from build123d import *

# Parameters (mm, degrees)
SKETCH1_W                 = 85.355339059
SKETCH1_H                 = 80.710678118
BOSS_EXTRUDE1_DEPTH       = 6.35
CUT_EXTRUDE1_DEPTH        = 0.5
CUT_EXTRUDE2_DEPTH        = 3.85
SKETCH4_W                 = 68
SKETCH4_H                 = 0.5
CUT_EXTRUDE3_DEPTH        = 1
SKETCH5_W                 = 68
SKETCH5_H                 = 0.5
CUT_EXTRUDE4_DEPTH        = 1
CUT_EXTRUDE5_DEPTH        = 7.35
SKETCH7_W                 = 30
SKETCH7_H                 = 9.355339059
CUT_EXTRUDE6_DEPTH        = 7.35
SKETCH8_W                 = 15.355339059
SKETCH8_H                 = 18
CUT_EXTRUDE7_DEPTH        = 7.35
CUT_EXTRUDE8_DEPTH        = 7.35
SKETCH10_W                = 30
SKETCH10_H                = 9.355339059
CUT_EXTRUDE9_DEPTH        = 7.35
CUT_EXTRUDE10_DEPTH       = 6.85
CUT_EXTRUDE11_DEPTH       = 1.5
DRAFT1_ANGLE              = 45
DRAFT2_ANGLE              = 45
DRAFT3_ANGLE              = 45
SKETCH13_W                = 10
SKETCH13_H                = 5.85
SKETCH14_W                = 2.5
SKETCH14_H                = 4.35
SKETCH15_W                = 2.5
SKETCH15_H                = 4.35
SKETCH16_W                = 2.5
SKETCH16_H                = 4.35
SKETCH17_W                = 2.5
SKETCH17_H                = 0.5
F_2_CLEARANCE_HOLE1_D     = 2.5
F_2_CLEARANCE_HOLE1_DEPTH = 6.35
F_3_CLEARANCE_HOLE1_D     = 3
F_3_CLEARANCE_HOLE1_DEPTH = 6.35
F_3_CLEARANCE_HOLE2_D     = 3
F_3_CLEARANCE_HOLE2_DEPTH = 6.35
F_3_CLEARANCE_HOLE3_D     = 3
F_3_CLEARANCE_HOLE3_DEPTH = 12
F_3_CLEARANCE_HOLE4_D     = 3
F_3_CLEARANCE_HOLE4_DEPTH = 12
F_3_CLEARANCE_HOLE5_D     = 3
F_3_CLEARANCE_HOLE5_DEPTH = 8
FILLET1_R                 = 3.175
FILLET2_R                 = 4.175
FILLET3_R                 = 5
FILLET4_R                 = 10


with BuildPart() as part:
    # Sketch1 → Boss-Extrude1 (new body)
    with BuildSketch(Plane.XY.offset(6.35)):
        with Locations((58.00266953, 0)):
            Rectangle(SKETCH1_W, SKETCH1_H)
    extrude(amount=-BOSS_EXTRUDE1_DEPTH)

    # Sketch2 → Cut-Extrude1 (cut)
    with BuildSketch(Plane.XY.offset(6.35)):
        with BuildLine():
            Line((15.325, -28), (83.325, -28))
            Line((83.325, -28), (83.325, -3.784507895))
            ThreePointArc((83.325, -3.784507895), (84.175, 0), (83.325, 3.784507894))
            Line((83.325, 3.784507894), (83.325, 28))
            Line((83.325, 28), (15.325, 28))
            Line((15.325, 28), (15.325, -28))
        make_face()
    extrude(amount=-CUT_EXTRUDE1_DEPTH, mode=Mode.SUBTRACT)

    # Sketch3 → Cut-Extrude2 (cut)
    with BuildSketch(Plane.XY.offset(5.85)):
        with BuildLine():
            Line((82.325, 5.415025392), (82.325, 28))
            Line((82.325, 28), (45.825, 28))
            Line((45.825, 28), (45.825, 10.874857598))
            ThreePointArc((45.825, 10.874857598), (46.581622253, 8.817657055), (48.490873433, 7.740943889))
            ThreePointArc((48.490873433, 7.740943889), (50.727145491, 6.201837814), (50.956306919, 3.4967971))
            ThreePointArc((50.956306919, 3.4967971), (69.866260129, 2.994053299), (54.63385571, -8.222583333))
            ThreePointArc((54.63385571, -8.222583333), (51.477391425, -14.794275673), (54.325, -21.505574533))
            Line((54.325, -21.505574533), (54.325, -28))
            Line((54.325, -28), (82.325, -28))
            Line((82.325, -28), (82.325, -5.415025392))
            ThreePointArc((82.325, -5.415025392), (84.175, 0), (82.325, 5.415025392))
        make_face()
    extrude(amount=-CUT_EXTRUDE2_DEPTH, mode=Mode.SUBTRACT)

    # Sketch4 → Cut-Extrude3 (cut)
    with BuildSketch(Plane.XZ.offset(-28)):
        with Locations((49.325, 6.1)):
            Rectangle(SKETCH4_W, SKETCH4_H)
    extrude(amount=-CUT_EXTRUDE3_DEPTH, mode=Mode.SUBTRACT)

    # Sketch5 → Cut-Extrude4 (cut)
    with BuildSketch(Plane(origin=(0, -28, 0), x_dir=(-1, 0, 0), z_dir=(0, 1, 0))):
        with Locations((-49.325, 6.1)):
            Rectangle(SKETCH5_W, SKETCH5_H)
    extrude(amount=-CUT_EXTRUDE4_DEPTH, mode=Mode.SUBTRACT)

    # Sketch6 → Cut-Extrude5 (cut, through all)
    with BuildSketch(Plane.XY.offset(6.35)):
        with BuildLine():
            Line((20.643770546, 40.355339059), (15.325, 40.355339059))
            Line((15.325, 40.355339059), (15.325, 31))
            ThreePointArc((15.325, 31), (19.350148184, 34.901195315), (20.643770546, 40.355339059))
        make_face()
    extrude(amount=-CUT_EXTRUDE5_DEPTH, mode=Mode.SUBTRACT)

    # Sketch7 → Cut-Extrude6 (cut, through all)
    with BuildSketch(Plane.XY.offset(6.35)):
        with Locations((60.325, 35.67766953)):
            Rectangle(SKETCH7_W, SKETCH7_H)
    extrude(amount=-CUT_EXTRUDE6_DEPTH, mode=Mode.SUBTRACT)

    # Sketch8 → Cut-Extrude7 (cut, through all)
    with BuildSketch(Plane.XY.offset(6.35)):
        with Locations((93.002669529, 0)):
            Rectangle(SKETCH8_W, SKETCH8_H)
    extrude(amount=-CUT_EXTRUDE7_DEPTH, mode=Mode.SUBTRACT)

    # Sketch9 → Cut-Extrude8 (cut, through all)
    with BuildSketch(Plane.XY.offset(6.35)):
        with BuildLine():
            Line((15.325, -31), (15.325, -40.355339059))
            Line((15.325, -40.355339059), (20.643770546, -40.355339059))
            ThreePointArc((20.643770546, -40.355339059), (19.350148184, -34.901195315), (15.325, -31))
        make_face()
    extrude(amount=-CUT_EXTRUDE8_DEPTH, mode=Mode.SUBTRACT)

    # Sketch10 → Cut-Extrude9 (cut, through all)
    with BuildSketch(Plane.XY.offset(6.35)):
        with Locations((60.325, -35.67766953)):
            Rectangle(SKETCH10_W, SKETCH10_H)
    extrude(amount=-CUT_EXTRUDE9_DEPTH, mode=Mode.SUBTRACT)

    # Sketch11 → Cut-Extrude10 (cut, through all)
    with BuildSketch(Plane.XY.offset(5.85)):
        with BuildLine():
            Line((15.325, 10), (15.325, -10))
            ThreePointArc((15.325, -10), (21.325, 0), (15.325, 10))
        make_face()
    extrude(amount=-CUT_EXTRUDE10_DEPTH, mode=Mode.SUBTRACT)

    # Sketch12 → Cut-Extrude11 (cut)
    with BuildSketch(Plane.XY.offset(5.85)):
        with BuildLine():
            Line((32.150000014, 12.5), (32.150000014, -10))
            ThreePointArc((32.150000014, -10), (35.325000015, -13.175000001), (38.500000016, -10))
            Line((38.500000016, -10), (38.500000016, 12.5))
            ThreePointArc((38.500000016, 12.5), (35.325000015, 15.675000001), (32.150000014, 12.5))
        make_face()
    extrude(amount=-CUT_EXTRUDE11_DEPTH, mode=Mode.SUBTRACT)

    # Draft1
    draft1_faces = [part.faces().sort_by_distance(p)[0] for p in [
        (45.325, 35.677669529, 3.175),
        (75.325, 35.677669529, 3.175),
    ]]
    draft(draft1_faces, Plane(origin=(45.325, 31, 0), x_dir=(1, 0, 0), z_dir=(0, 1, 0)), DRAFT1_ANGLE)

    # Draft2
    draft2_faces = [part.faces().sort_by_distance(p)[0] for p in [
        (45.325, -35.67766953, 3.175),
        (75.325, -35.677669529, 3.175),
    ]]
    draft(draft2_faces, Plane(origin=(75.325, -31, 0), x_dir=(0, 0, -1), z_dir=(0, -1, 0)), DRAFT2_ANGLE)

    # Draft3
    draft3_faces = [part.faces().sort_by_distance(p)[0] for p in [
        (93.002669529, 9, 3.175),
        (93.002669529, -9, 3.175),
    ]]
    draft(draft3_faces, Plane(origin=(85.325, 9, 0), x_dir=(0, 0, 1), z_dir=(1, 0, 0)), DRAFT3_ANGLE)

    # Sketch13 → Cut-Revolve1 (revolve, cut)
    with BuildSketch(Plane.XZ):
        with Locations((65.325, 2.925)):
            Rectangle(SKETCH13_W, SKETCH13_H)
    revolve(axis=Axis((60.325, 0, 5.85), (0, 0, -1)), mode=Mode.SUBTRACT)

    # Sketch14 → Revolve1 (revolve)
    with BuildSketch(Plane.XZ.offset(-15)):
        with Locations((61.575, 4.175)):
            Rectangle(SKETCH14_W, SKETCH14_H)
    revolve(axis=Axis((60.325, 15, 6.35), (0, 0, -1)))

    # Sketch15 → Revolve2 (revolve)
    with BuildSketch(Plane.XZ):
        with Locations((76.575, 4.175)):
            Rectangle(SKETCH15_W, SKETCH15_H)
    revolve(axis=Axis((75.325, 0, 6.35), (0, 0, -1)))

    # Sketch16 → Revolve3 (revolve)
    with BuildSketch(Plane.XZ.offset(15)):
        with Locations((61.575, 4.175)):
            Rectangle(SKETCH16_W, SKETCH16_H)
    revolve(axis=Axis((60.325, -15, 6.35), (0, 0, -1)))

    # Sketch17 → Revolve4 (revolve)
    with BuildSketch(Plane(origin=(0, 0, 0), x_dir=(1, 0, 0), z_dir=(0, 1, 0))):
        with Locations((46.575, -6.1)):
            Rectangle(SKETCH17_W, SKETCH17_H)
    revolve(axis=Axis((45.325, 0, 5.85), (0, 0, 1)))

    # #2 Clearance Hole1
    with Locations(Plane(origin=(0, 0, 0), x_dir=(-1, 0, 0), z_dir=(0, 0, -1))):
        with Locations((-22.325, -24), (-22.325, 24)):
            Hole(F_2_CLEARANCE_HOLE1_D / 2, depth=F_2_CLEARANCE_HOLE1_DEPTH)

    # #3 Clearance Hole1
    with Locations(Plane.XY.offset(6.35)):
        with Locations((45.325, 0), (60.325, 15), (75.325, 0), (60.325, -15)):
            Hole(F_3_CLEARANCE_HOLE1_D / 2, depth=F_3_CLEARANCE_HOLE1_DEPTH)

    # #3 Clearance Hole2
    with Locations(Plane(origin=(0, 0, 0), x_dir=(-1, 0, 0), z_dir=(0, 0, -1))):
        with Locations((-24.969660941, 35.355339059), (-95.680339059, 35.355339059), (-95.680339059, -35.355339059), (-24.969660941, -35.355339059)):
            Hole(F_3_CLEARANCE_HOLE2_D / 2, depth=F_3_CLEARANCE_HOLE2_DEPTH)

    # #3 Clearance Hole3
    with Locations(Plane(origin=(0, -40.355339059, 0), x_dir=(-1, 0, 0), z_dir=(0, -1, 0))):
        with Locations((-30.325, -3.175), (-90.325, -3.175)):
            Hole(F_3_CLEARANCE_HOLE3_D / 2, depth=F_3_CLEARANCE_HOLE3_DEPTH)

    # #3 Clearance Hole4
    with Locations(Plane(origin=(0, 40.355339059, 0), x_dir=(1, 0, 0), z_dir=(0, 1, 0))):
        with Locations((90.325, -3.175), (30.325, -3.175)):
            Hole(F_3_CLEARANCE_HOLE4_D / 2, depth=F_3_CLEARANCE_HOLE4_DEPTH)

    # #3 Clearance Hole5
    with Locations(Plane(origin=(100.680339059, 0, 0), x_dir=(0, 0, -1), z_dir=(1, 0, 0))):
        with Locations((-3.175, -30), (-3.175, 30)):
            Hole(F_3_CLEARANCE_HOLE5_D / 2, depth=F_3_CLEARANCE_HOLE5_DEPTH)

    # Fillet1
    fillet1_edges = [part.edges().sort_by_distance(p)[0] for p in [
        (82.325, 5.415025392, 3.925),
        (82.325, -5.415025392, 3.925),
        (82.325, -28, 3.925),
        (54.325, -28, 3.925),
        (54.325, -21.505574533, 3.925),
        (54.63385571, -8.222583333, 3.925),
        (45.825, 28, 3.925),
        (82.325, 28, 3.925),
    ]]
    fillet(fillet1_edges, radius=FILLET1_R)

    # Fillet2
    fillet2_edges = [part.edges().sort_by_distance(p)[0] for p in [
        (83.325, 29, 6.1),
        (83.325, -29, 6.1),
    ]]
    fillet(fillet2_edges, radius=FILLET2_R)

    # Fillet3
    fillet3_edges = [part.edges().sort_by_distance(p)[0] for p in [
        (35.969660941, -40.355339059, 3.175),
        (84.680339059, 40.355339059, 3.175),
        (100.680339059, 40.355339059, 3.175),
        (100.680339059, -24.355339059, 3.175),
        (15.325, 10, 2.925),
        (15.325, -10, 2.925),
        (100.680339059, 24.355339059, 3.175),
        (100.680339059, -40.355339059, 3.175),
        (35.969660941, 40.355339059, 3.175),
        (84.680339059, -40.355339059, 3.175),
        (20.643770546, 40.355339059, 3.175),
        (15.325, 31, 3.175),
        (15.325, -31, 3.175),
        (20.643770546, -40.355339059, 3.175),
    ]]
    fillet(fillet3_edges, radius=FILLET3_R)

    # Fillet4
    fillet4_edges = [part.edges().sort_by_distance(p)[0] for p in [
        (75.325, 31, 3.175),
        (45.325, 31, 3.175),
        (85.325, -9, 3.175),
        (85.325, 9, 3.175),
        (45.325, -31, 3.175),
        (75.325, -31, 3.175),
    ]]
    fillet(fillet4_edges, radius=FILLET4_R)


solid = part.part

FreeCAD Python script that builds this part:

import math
import FreeCAD as App
import Part
import Sketcher
from FreeCAD import Vector


def edges_at(feature, points):
    """Names of the edges that pass closest to the given points."""
    edges = feature.Shape.Edges
    near = lambda p: min(range(len(edges)), key=lambda i: edges[i].distToShape(Part.Vertex(*p))[0])
    return sorted({f"Edge{near(p) + 1}" for p in points})


def faces_at(feature, points):
    """Names of the faces that lie closest to the given points."""
    faces = feature.Shape.Faces
    near = lambda p: min(range(len(faces)), key=lambda i: faces[i].distToShape(Part.Vertex(*p))[0])
    return sorted({f"Face{near(p) + 1}" for p in points})

doc = App.newDocument("Part")
body = doc.addObject("PartDesign::Body", "Body")

# Sketch on XY plane
sketch1 = doc.addObject("Sketcher::SketchObject", "Sketch")
body.addObject(sketch1)
sketch1.AttachmentSupport = (doc.XY_Plane, [""])
sketch1.MapMode = "FlatFace"
sketch1.AttachmentOffset = App.Placement(Vector(0, 0, 6.35), App.Rotation())
sketch1.addGeometry([
    Part.LineSegment(Vector(15.325, 40.355339, 0), Vector(15.325, -40.355339, 0)),
    Part.LineSegment(Vector(15.325, -40.355339, 0), Vector(100.680339, -40.355339, 0)),
    Part.LineSegment(Vector(100.680339, -40.355339, 0), Vector(100.680339, 40.355339, 0)),
    Part.LineSegment(Vector(100.680339, 40.355339, 0), Vector(15.325, 40.355339, 0)),
], False)
sketch1.addConstraint([
    Sketcher.Constraint("Coincident", 0, 2, 1, 1),
    Sketcher.Constraint("Coincident", 1, 2, 2, 1),
    Sketcher.Constraint("Coincident", 2, 2, 3, 1),
    Sketcher.Constraint("Coincident", 3, 2, 0, 1),
    Sketcher.Constraint("Vertical", 0),
    Sketcher.Constraint("Horizontal", 1),
    Sketcher.Constraint("Vertical", 2),
    Sketcher.Constraint("Horizontal", 3),
    Sketcher.Constraint("DistanceX", -1, 1, 0, 2, 15.325),
    Sketcher.Constraint("DistanceX", 1, 1, 1, 2, 85.355339),
    Sketcher.Constraint("DistanceY", 0, 2, 0, 1, 80.710678),
    Sketcher.Constraint("DistanceY", 0, 2, -1, 1, 40.355339),
])
pad1 = doc.addObject("PartDesign::Pad", "Pad")
body.addObject(pad1)
pad1.Profile = sketch1
pad1.Length = 6.35
pad1.Reversed = True

# Sketch on XY plane
sketch2 = doc.addObject("Sketcher::SketchObject", "Sketch001")
body.addObject(sketch2)
sketch2.AttachmentSupport = (doc.XY_Plane, [""])
sketch2.MapMode = "FlatFace"
sketch2.AttachmentOffset = App.Placement(Vector(0, 0, 6.35), App.Rotation())
sketch2.addGeometry([
    Part.LineSegment(Vector(15.325, -28, 0), Vector(83.325, -28, 0)),  # 0
    Part.LineSegment(Vector(83.325, -28, 0), Vector(83.325, -3.784508, 0)),  # 1
    Part.ArcOfCircle(Part.Circle(Vector(75.325, 0, 0), Vector(0, 0, 1), 8.85), math.radians(-25.317122), math.radians(25.317122)),  # 2
    Part.LineSegment(Vector(83.325, 3.784508, 0), Vector(83.325, 28, 0)),  # 3
    Part.LineSegment(Vector(83.325, 28, 0), Vector(15.325, 28, 0)),  # 4
    Part.LineSegment(Vector(15.325, 28, 0), Vector(15.325, -28, 0)),  # 5
], False)
sketch2.addConstraint([
    Sketcher.Constraint("Coincident", 0, 2, 1, 1),
    Sketcher.Constraint("Coincident", 1, 2, 2, 1),
    Sketcher.Constraint("Coincident", 2, 2, 3, 1),
    Sketcher.Constraint("Coincident", 3, 2, 4, 1),
    Sketcher.Constraint("Coincident", 4, 2, 5, 1),
    Sketcher.Constraint("Coincident", 5, 2, 0, 1),
    Sketcher.Constraint("Horizontal", 0),
    Sketcher.Constraint("Vertical", 1),
    Sketcher.Constraint("Vertical", 3),
    Sketcher.Constraint("Horizontal", 4),
    Sketcher.Constraint("Vertical", 5),
    Sketcher.Constraint("Symmetric", 1, 2, 2, 2, -1),
    Sketcher.Constraint("Equal", 1, 3),
    Sketcher.Constraint("DistanceX", 0, 1, 0, 2, 68.0),
    Sketcher.Constraint("DistanceY", 5, 2, 5, 1, 56.0),
    Sketcher.Constraint("Radius", 2, 8.85),
    Sketcher.Constraint("DistanceX", 2, 3, 0, 2, 8.0),
    Sketcher.Constraint("DistanceX", -1, 1, 2, 3, 75.325),
])
pocket1 = doc.addObject("PartDesign::Pocket", "Pocket")
body.addObject(pocket1)
pocket1.Profile = sketch2
pocket1.Length = 0.5

# Sketch on XY plane
sketch3 = doc.addObject("Sketcher::SketchObject", "Sketch002")
body.addObject(sketch3)
sketch3.AttachmentSupport = (doc.XY_Plane, [""])
sketch3.MapMode = "FlatFace"
sketch3.AttachmentOffset = App.Placement(Vector(0, 0, 5.85), App.Rotation())
sketch3.addGeometry([
    Part.LineSegment(Vector(82.325, 5.415025, 0), Vector(82.325, 28, 0)),  # 0
    Part.LineSegment(Vector(82.325, 28, 0), Vector(45.825, 28, 0)),  # 1
    Part.LineSegment(Vector(45.825, 28, 0), Vector(45.825, 10.874858, 0)),  # 2
    Part.ArcOfCircle(Part.Circle(Vector(49, 10.874858, 0), Vector(0, 0, 1), 3.175), math.radians(180), math.radians(260.772508)),  # 3
    Part.ArcOfCircle(Part.Circle(Vector(47.981747, 4.60703, 0), Vector(0, 0, 1), 3.175), math.radians(-20.467726), math.radians(80.772508)),  # 4
    Part.ArcOfCircle(Part.Circle(Vector(60.325, 0, 0), Vector(0, 0, 1), 10), math.radians(-124.688495), math.radians(159.532274)),  # 5
    Part.ArcOfCircle(Part.Circle(Vector(60.325, -15, 0), Vector(0, 0, 1), 8.85), math.radians(130.020911), math.radians(227.315089)),  # 6
    Part.LineSegment(Vector(54.325, -21.505575, 0), Vector(54.325, -28, 0)),  # 7
    Part.LineSegment(Vector(54.325, -28, 0), Vector(82.325, -28, 0)),  # 8
    Part.LineSegment(Vector(82.325, -28, 0), Vector(82.325, -5.415025, 0)),  # 9
    Part.ArcOfCircle(Part.Circle(Vector(75.325, 0, 0), Vector(0, 0, 1), 8.85), math.radians(-37.724642), math.radians(37.724642)),  # 10
], False)
sketch3.addConstraint([
    Sketcher.Constraint("Coincident", 0, 2, 1, 1),
    Sketcher.Constraint("Coincident", 1, 2, 2, 1),
    Sketcher.Constraint("Tangent", 2, 2, 3, 1),
    Sketcher.Constraint("Tangent", 3, 2, 4, 2),
    Sketcher.Constraint("Tangent", 4, 1, 5, 2),
    Sketcher.Constraint("Coincident", 5, 1, 6, 1),
    Sketcher.Constraint("Coincident", 6, 2, 7, 1),
    Sketcher.Constraint("Coincident", 7, 2, 8, 1),
    Sketcher.Constraint("Coincident", 8, 2, 9, 1),
    Sketcher.Constraint("Coincident", 9, 2, 10, 1),
    Sketcher.Constraint("Coincident", 10, 2, 0, 1),
    Sketcher.Constraint("Vertical", 0),
    Sketcher.Constraint("Horizontal", 1),
    Sketcher.Constraint("Vertical", 2),
    Sketcher.Constraint("Vertical", 7),
    Sketcher.Constraint("Horizontal", 8),
    Sketcher.Constraint("Vertical", 9),
    Sketcher.Constraint("Equal", 3, 4),
    Sketcher.Constraint("Equal", 6, 10),
    Sketcher.Constraint("Symmetric", 0, 2, 8, 2, -1),
    Sketcher.Constraint("PointOnObject", 5, 3, -1),
    Sketcher.Constraint("PointOnObject", 10, 3, -1),
    Sketcher.Constraint("Vertical", 5, 3, 6, 3),
    Sketcher.Constraint("Radius", 5, 10.0),
    Sketcher.Constraint("DistanceX", 8, 1, 8, 2, 28.0),
    Sketcher.Constraint("Radius", 6, 8.85),
    Sketcher.Constraint("DistanceX", 1, 2, 1, 1, 36.5),
    Sketcher.Constraint("DistanceX", -1, 1, 3, 3, 49.0),
    Sketcher.Constraint("DistanceY", 6, 3, -1, 1, 15.0),
    Sketcher.Constraint("DistanceY", -1, 1, 0, 2, 28.0),
    Sketcher.Constraint("Radius", 3, 3.175),
    Sketcher.Constraint("DistanceX", 5, 3, 10, 3, 15.0),
    Sketcher.Constraint("DistanceX", 10, 3, 0, 2, 7.0),
    Sketcher.Constraint("DistanceY", 2, 2, 2, 1, 17.125142),
])
pocket2 = doc.addObject("PartDesign::Pocket", "Pocket001")
body.addObject(pocket2)
pocket2.Profile = sketch3
pocket2.Length = 3.85

# Sketch on XZ plane
sketch4 = doc.addObject("Sketcher::SketchObject", "Sketch003")
body.addObject(sketch4)
sketch4.AttachmentSupport = (doc.XZ_Plane, [""])
sketch4.MapMode = "FlatFace"
sketch4.AttachmentOffset = App.Placement(Vector(0, 0, -28), App.Rotation())
sketch4.addGeometry([
    Part.LineSegment(Vector(15.325, 6.35, 0), Vector(15.325, 5.85, 0)),
    Part.LineSegment(Vector(15.325, 5.85, 0), Vector(83.325, 5.85, 0)),
    Part.LineSegment(Vector(83.325, 5.85, 0), Vector(83.325, 6.35, 0)),
    Part.LineSegment(Vector(83.325, 6.35, 0), Vector(15.325, 6.35, 0)),
], False)
sketch4.addConstraint([
    Sketcher.Constraint("Coincident", 0, 2, 1, 1),
    Sketcher.Constraint("Coincident", 1, 2, 2, 1),
    Sketcher.Constraint("Coincident", 2, 2, 3, 1),
    Sketcher.Constraint("Coincident", 3, 2, 0, 1),
    Sketcher.Constraint("Vertical", 0),
    Sketcher.Constraint("Horizontal", 1),
    Sketcher.Constraint("Vertical", 2),
    Sketcher.Constraint("Horizontal", 3),
    Sketcher.Constraint("DistanceX", 1, 1, 1, 2, 68.0),
    Sketcher.Constraint("DistanceY", 0, 2, 0, 1, 0.5),
    Sketcher.Constraint("DistanceY", -1, 1, 0, 2, 5.85),
    Sketcher.Constraint("DistanceX", -1, 1, 0, 2, 15.325),
])
pocket3 = doc.addObject("PartDesign::Pocket", "Pocket002")
body.addObject(pocket3)
pocket3.Profile = sketch4
pocket3.Length = 1

# Sketch on XZ plane
sketch5 = doc.addObject("Sketcher::SketchObject", "Sketch004")
body.addObject(sketch5)
sketch5.AttachmentSupport = (doc.XZ_Plane, [""])
sketch5.MapMode = "FlatFace"
sketch5.AttachmentOffset = App.Placement(Vector(0, 0, 28), App.Rotation())
sketch5.addGeometry([
    Part.LineSegment(Vector(83.325, 6.35, 0), Vector(83.325, 5.85, 0)),
    Part.LineSegment(Vector(83.325, 5.85, 0), Vector(15.325, 5.85, 0)),
    Part.LineSegment(Vector(15.325, 5.85, 0), Vector(15.325, 6.35, 0)),
    Part.LineSegment(Vector(15.325, 6.35, 0), Vector(83.325, 6.35, 0)),
], False)
sketch5.addConstraint([
    Sketcher.Constraint("Coincident", 0, 2, 1, 1),
    Sketcher.Constraint("Coincident", 1, 2, 2, 1),
    Sketcher.Constraint("Coincident", 2, 2, 3, 1),
    Sketcher.Constraint("Coincident", 3, 2, 0, 1),
    Sketcher.Constraint("Vertical", 0),
    Sketcher.Constraint("Horizontal", 1),
    Sketcher.Constraint("Vertical", 2),
    Sketcher.Constraint("Horizontal", 3),
    Sketcher.Constraint("DistanceX", 1, 2, 1, 1, 68.0),
    Sketcher.Constraint("DistanceY", 0, 2, 0, 1, 0.5),
    Sketcher.Constraint("DistanceY", -1, 1, 0, 2, 5.85),
    Sketcher.Constraint("DistanceX", -1, 1, 0, 2, 83.325),
])
pocket4 = doc.addObject("PartDesign::Pocket", "Pocket003")
body.addObject(pocket4)
pocket4.Profile = sketch5
pocket4.Length = 1
pocket4.Reversed = True

# Sketch on XY plane
sketch6 = doc.addObject("Sketcher::SketchObject", "Sketch005")
body.addObject(sketch6)
sketch6.AttachmentSupport = (doc.XY_Plane, [""])
sketch6.MapMode = "FlatFace"
sketch6.AttachmentOffset = App.Placement(Vector(0, 0, 6.35), App.Rotation())
sketch6.addGeometry([
    Part.LineSegment(Vector(20.643771, 40.355339, 0), Vector(15.325, 40.355339, 0)),
    Part.LineSegment(Vector(15.325, 40.355339, 0), Vector(15.325, 31, 0)),
    Part.ArcOfCircle(Part.Circle(Vector(10.656875, 39.843563, 0), Vector(0, 0, 1), 10), math.radians(-62.172412), math.radians(2.933542)),
], False)
sketch6.addConstraint([
    Sketcher.Constraint("Coincident", 0, 2, 1, 1),
    Sketcher.Constraint("Coincident", 1, 2, 2, 1),
    Sketcher.Constraint("Coincident", 2, 2, 0, 1),
    Sketcher.Constraint("Horizontal", 0),
    Sketcher.Constraint("Vertical", 1),
    Sketcher.Constraint("Radius", 2, 10.0),
    Sketcher.Constraint("DistanceY", -1, 1, 1, 2, 31.0),
    Sketcher.Constraint("DistanceX", -1, 1, 0, 2, 15.325),
    Sketcher.Constraint("DistanceX", 0, 2, 0, 1, 5.318771),
    Sketcher.Constraint("DistanceY", 1, 2, 1, 1, 9.355339),
])
pocket5 = doc.addObject("PartDesign::Pocket", "Pocket004")
body.addObject(pocket5)
pocket5.Profile = sketch6
pocket5.Type = "ThroughAll"

# Sketch on XY plane
sketch7 = doc.addObject("Sketcher::SketchObject", "Sketch006")
body.addObject(sketch7)
sketch7.AttachmentSupport = (doc.XY_Plane, [""])
sketch7.MapMode = "FlatFace"
sketch7.AttachmentOffset = App.Placement(Vector(0, 0, 6.35), App.Rotation())
sketch7.addGeometry([
    Part.LineSegment(Vector(45.325, 40.355339, 0), Vector(45.325, 31, 0)),
    Part.LineSegment(Vector(45.325, 31, 0), Vector(75.325, 31, 0)),
    Part.LineSegment(Vector(75.325, 31, 0), Vector(75.325, 40.355339, 0)),
    Part.LineSegment(Vector(75.325, 40.355339, 0), Vector(45.325, 40.355339, 0)),
], False)
sketch7.addConstraint([
    Sketcher.Constraint("Coincident", 0, 2, 1, 1),
    Sketcher.Constraint("Coincident", 1, 2, 2, 1),
    Sketcher.Constraint("Coincident", 2, 2, 3, 1),
    Sketcher.Constraint("Coincident", 3, 2, 0, 1),
    Sketcher.Constraint("Vertical", 0),
    Sketcher.Constraint("Horizontal", 1),
    Sketcher.Constraint("Vertical", 2),
    Sketcher.Constraint("Horizontal", 3),
    Sketcher.Constraint("DistanceX", 1, 1, 1, 2, 30.0),
    Sketcher.Constraint("DistanceY", -1, 1, 0, 2, 31.0),
    Sketcher.Constraint("DistanceX", -1, 1, 0, 2, 45.325),
    Sketcher.Constraint("DistanceY", 0, 2, 0, 1, 9.355339),
])
pocket6 = doc.addObject("PartDesign::Pocket", "Pocket005")
body.addObject(pocket6)
pocket6.Profile = sketch7
pocket6.Type = "ThroughAll"

# Sketch on XY plane
sketch8 = doc.addObject("Sketcher::SketchObject", "Sketch007")
body.addObject(sketch8)
sketch8.AttachmentSupport = (doc.XY_Plane, [""])
sketch8.MapMode = "FlatFace"
sketch8.AttachmentOffset = App.Placement(Vector(0, 0, 6.35), App.Rotation())
sketch8.addGeometry([
    Part.LineSegment(Vector(85.325, 9, 0), Vector(85.325, -9, 0)),
    Part.LineSegment(Vector(85.325, -9, 0), Vector(100.680339, -9, 0)),
    Part.LineSegment(Vector(100.680339, -9, 0), Vector(100.680339, 9, 0)),
    Part.LineSegment(Vector(100.680339, 9, 0), Vector(85.325, 9, 0)),
], False)
sketch8.addConstraint([
    Sketcher.Constraint("Coincident", 0, 2, 1, 1),
    Sketcher.Constraint("Coincident", 1, 2, 2, 1),
    Sketcher.Constraint("Coincident", 2, 2, 3, 1),
    Sketcher.Constraint("Coincident", 3, 2, 0, 1),
    Sketcher.Constraint("Vertical", 0),
    Sketcher.Constraint("Horizontal", 1),
    Sketcher.Constraint("Vertical", 2),
    Sketcher.Constraint("Horizontal", 3),
    Sketcher.Constraint("DistanceY", 0, 2, 0, 1, 18.0),
    Sketcher.Constraint("DistanceY", 0, 2, -1, 1, 9.0),
    Sketcher.Constraint("DistanceX", -1, 1, 0, 2, 85.325),
    Sketcher.Constraint("DistanceX", 1, 1, 1, 2, 15.355339),
])
pocket7 = doc.addObject("PartDesign::Pocket", "Pocket006")
body.addObject(pocket7)
pocket7.Profile = sketch8
pocket7.Type = "ThroughAll"

# Sketch on XY plane
sketch9 = doc.addObject("Sketcher::SketchObject", "Sketch008")
body.addObject(sketch9)
sketch9.AttachmentSupport = (doc.XY_Plane, [""])
sketch9.MapMode = "FlatFace"
sketch9.AttachmentOffset = App.Placement(Vector(0, 0, 6.35), App.Rotation())
sketch9.addGeometry([
    Part.LineSegment(Vector(15.325, -31, 0), Vector(15.325, -40.355339, 0)),
    Part.LineSegment(Vector(15.325, -40.355339, 0), Vector(20.643771, -40.355339, 0)),
    Part.ArcOfCircle(Part.Circle(Vector(10.656875, -39.843563, 0), Vector(0, 0, 1), 10), math.radians(-2.933542), math.radians(62.172412)),
], False)
sketch9.addConstraint([
    Sketcher.Constraint("Coincident", 0, 2, 1, 1),
    Sketcher.Constraint("Coincident", 1, 2, 2, 1),
    Sketcher.Constraint("Coincident", 2, 2, 0, 1),
    Sketcher.Constraint("Vertical", 0),
    Sketcher.Constraint("Horizontal", 1),
    Sketcher.Constraint("Radius", 2, 10.0),
    Sketcher.Constraint("DistanceY", 2, 2, -1, 1, 31.0),
    Sketcher.Constraint("DistanceX", -1, 1, 0, 2, 15.325),
    Sketcher.Constraint("DistanceX", 1, 1, 1, 2, 5.318771),
    Sketcher.Constraint("DistanceY", 0, 2, 0, 1, 9.355339),
])
pocket8 = doc.addObject("PartDesign::Pocket", "Pocket007")
body.addObject(pocket8)
pocket8.Profile = sketch9
pocket8.Type = "ThroughAll"

# Sketch on XY plane
sketch10 = doc.addObject("Sketcher::SketchObject", "Sketch009")
body.addObject(sketch10)
sketch10.AttachmentSupport = (doc.XY_Plane, [""])
sketch10.MapMode = "FlatFace"
sketch10.AttachmentOffset = App.Placement(Vector(0, 0, 6.35), App.Rotation())
sketch10.addGeometry([
    Part.LineSegment(Vector(45.325, -31, 0), Vector(45.325, -40.355339, 0)),
    Part.LineSegment(Vector(45.325, -40.355339, 0), Vector(75.325, -40.355339, 0)),
    Part.LineSegment(Vector(75.325, -40.355339, 0), Vector(75.325, -31, 0)),
    Part.LineSegment(Vector(75.325, -31, 0), Vector(45.325, -31, 0)),
], False)
sketch10.addConstraint([
    Sketcher.Constraint("Coincident", 0, 2, 1, 1),
    Sketcher.Constraint("Coincident", 1, 2, 2, 1),
    Sketcher.Constraint("Coincident", 2, 2, 3, 1),
    Sketcher.Constraint("Coincident", 3, 2, 0, 1),
    Sketcher.Constraint("Vertical", 0),
    Sketcher.Constraint("Horizontal", 1),
    Sketcher.Constraint("Vertical", 2),
    Sketcher.Constraint("Horizontal", 3),
    Sketcher.Constraint("DistanceX", 1, 1, 1, 2, 30.0),
    Sketcher.Constraint("DistanceY", 2, 2, -1, 1, 31.0),
    Sketcher.Constraint("DistanceX", -1, 1, 0, 2, 45.325),
    Sketcher.Constraint("DistanceY", 0, 2, 0, 1, 9.355339),
])
pocket9 = doc.addObject("PartDesign::Pocket", "Pocket008")
body.addObject(pocket9)
pocket9.Profile = sketch10
pocket9.Type = "ThroughAll"

# Sketch on XY plane
sketch11 = doc.addObject("Sketcher::SketchObject", "Sketch010")
body.addObject(sketch11)
sketch11.AttachmentSupport = (doc.XY_Plane, [""])
sketch11.MapMode = "FlatFace"
sketch11.AttachmentOffset = App.Placement(Vector(0, 0, 5.85), App.Rotation())
sketch11.addGeometry([
    Part.LineSegment(Vector(15.325, 10, 0), Vector(15.325, -10, 0)),
    Part.ArcOfCircle(Part.Circle(Vector(9.991667, 0, 0), Vector(0, 0, 1), 11.333333), math.radians(-61.927513), math.radians(61.927513)),
], False)
sketch11.addConstraint([
    Sketcher.Constraint("Coincident", 0, 1, 1, 2),
    Sketcher.Constraint("Coincident", 1, 1, 0, 2),
    Sketcher.Constraint("Vertical", 0),
    Sketcher.Constraint("PointOnObject", 1, 3, -1),
    Sketcher.Constraint("DistanceY", 0, 2, 0, 1, 20.0),
    Sketcher.Constraint("DistanceX", -1, 1, 0, 1, 15.325),
    Sketcher.Constraint("Radius", 1, 11.333333),
])
pocket10 = doc.addObject("PartDesign::Pocket", "Pocket009")
body.addObject(pocket10)
pocket10.Profile = sketch11
pocket10.Type = "ThroughAll"

# Sketch on XY plane
sketch12 = doc.addObject("Sketcher::SketchObject", "Sketch011")
body.addObject(sketch12)
sketch12.AttachmentSupport = (doc.XY_Plane, [""])
sketch12.MapMode = "FlatFace"
sketch12.AttachmentOffset = App.Placement(Vector(0, 0, 5.85), App.Rotation())
sketch12.addGeometry([
    Part.LineSegment(Vector(32.15, 12.5, 0), Vector(32.15, -10, 0)),
    Part.ArcOfCircle(Part.Circle(Vector(35.325, -10, 0), Vector(0, 0, 1), 3.175), math.radians(180), math.radians(360)),
    Part.LineSegment(Vector(38.5, -10, 0), Vector(38.5, 12.5, 0)),
    Part.ArcOfCircle(Part.Circle(Vector(35.325, 12.5, 0), Vector(0, 0, 1), 3.175), math.radians(0), math.radians(180)),
], False)
sketch12.addConstraint([
    Sketcher.Constraint("Tangent", 0, 2, 1, 1),
    Sketcher.Constraint("Tangent", 1, 2, 2, 1),
    Sketcher.Constraint("Tangent", 2, 2, 3, 1),
    Sketcher.Constraint("Tangent", 3, 2, 0, 1),
    Sketcher.Constraint("Vertical", 0),
    Sketcher.Constraint("Vertical", 2),
    Sketcher.Constraint("DistanceY", 0, 2, 0, 1, 22.5),
    Sketcher.Constraint("DistanceY", 1, 3, -1, 1, 10.0),
    Sketcher.Constraint("Radius", 1, 3.175),
    Sketcher.Constraint("DistanceX", -1, 1, 1, 2, 38.5),
])
pocket11 = doc.addObject("PartDesign::Pocket", "Pocket010")
body.addObject(pocket11)
pocket11.Profile = sketch12
pocket11.Length = 1.5
doc.recompute()

datumplane = doc.addObject("PartDesign::Plane", "DatumPlane")
body.addObject(datumplane)
datumplane.AttachmentSupport = (doc.XZ_Plane, [""])
datumplane.MapMode = "FlatFace"
datumplane.AttachmentOffset = App.Placement(Vector(0, 0, -31), App.Rotation())
draft = doc.addObject("PartDesign::Draft", "Draft")
body.addObject(draft)
draft.Base = (pocket11, faces_at(pocket11, [(45.325, 35.678, 3.175), (75.325, 35.678, 3.175)]))
draft.NeutralPlane = (datumplane, [""])
draft.Angle = 45
draft.Reversed = True
doc.recompute()

datumplane2 = doc.addObject("PartDesign::Plane", "DatumPlane001")
body.addObject(datumplane2)
datumplane2.AttachmentSupport = (doc.XZ_Plane, [""])
datumplane2.MapMode = "FlatFace"
datumplane2.AttachmentOffset = App.Placement(Vector(0, 0, 31), App.Rotation())
draft2 = doc.addObject("PartDesign::Draft", "Draft001")
body.addObject(draft2)
draft2.Base = (draft, faces_at(draft, [(45.325, -35.678, 3.175), (75.325, -35.678, 3.175)]))
draft2.NeutralPlane = (datumplane2, [""])
draft2.Angle = 45
draft2.Reversed = False
doc.recompute()

datumplane3 = doc.addObject("PartDesign::Plane", "DatumPlane002")
body.addObject(datumplane3)
datumplane3.AttachmentSupport = (doc.YZ_Plane, [""])
datumplane3.MapMode = "FlatFace"
datumplane3.AttachmentOffset = App.Placement(Vector(0, 0, 85.325), App.Rotation())
draft3 = doc.addObject("PartDesign::Draft", "Draft002")
body.addObject(draft3)
draft3.Base = (draft2, faces_at(draft2, [(93.003, 9, 3.175), (93.003, -9, 3.175)]))
draft3.NeutralPlane = (datumplane3, [""])
draft3.Angle = 45
draft3.Reversed = False

# Sketch on XZ plane
sketch13 = doc.addObject("Sketcher::SketchObject", "Sketch012")
body.addObject(sketch13)
sketch13.AttachmentSupport = (doc.XZ_Plane, [""])
sketch13.MapMode = "FlatFace"
sketch13.addGeometry([
    Part.LineSegment(Vector(60.325, 5.85, 0), Vector(60.325, 0, 0)),
    Part.LineSegment(Vector(60.325, 0, 0), Vector(70.325, 0, 0)),
    Part.LineSegment(Vector(70.325, 0, 0), Vector(70.325, 5.85, 0)),
    Part.LineSegment(Vector(70.325, 5.85, 0), Vector(60.325, 5.85, 0)),
], False)
sketch13.addGeometry(Part.LineSegment(Vector(60.325, 5.85, 0), Vector(60.325, 0, 0)), True)  # axis
sketch13.addConstraint([
    Sketcher.Constraint("Coincident", 0, 2, 1, 1),
    Sketcher.Constraint("Coincident", 1, 2, 2, 1),
    Sketcher.Constraint("Coincident", 2, 2, 3, 1),
    Sketcher.Constraint("Coincident", 3, 2, 0, 1),
    Sketcher.Constraint("Vertical", 0),
    Sketcher.Constraint("Horizontal", 1),
    Sketcher.Constraint("Vertical", 2),
    Sketcher.Constraint("Horizontal", 3),
    Sketcher.Constraint("Vertical", 4),
    Sketcher.Constraint("Coincident", 4, 1, 3, 2),
    Sketcher.Constraint("PointOnObject", 0, 2, -1),
    Sketcher.Constraint("PointOnObject", 4, 2, -1),
    Sketcher.Constraint("DistanceX", 1, 1, 1, 2, 10.0),
    Sketcher.Constraint("DistanceY", 0, 2, 0, 1, 5.85),
    Sketcher.Constraint("DistanceX", -1, 1, 0, 2, 60.325),
])
groove = doc.addObject("PartDesign::Groove", "Groove")
body.addObject(groove)
groove.Profile = sketch13
groove.ReferenceAxis = (sketch13, ["Axis0"])
groove.Angle = 360

# Sketch on XZ plane
sketch14 = doc.addObject("Sketcher::SketchObject", "Sketch013")
body.addObject(sketch14)
sketch14.AttachmentSupport = (doc.XZ_Plane, [""])
sketch14.MapMode = "FlatFace"
sketch14.AttachmentOffset = App.Placement(Vector(0, 0, -15), App.Rotation())
sketch14.addGeometry([
    Part.LineSegment(Vector(60.325, 6.35, 0), Vector(60.325, 2, 0)),
    Part.LineSegment(Vector(60.325, 2, 0), Vector(62.825, 2, 0)),
    Part.LineSegment(Vector(62.825, 2, 0), Vector(62.825, 6.35, 0)),
    Part.LineSegment(Vector(62.825, 6.35, 0), Vector(60.325, 6.35, 0)),
], False)
sketch14.addGeometry(Part.LineSegment(Vector(60.325, 6.35, 0), Vector(60.325, 2, 0)), True)  # axis
sketch14.addConstraint([
    Sketcher.Constraint("Coincident", 0, 2, 1, 1),
    Sketcher.Constraint("Coincident", 1, 2, 2, 1),
    Sketcher.Constraint("Coincident", 2, 2, 3, 1),
    Sketcher.Constraint("Coincident", 3, 2, 0, 1),
    Sketcher.Constraint("Vertical", 0),
    Sketcher.Constraint("Horizontal", 1),
    Sketcher.Constraint("Vertical", 2),
    Sketcher.Constraint("Horizontal", 3),
    Sketcher.Constraint("Vertical", 4),
    Sketcher.Constraint("Coincident", 4, 1, 3, 2),
    Sketcher.Constraint("Horizontal", 1, 2, 4, 2),
    Sketcher.Constraint("DistanceX", 1, 1, 1, 2, 2.5),
    Sketcher.Constraint("DistanceY", -1, 1, 0, 2, 2.0),
    Sketcher.Constraint("DistanceY", 0, 2, 0, 1, 4.35),
    Sketcher.Constraint("DistanceX", -1, 1, 0, 2, 60.325),
])
revolution = doc.addObject("PartDesign::Revolution", "Revolution")
body.addObject(revolution)
revolution.Profile = sketch14
revolution.ReferenceAxis = (sketch14, ["Axis0"])
revolution.Angle = 360

# Sketch on XZ plane
sketch15 = doc.addObject("Sketcher::SketchObject", "Sketch014")
body.addObject(sketch15)
sketch15.AttachmentSupport = (doc.XZ_Plane, [""])
sketch15.MapMode = "FlatFace"
sketch15.addGeometry([
    Part.LineSegment(Vector(75.325, 6.35, 0), Vector(75.325, 2, 0)),
    Part.LineSegment(Vector(75.325, 2, 0), Vector(77.825, 2, 0)),
    Part.LineSegment(Vector(77.825, 2, 0), Vector(77.825, 6.35, 0)),
    Part.LineSegment(Vector(77.825, 6.35, 0), Vector(75.325, 6.35, 0)),
], False)
sketch15.addGeometry(Part.LineSegment(Vector(75.325, 6.35, 0), Vector(75.325, 2, 0)), True)  # axis
sketch15.addConstraint([
    Sketcher.Constraint("Coincident", 0, 2, 1, 1),
    Sketcher.Constraint("Coincident", 1, 2, 2, 1),
    Sketcher.Constraint("Coincident", 2, 2, 3, 1),
    Sketcher.Constraint("Coincident", 3, 2, 0, 1),
    Sketcher.Constraint("Vertical", 0),
    Sketcher.Constraint("Horizontal", 1),
    Sketcher.Constraint("Vertical", 2),
    Sketcher.Constraint("Horizontal", 3),
    Sketcher.Constraint("Vertical", 4),
    Sketcher.Constraint("Coincident", 4, 1, 3, 2),
    Sketcher.Constraint("Horizontal", 1, 2, 4, 2),
    Sketcher.Constraint("DistanceX", 1, 1, 1, 2, 2.5),
    Sketcher.Constraint("DistanceY", -1, 1, 0, 2, 2.0),
    Sketcher.Constraint("DistanceY", 0, 2, 0, 1, 4.35),
    Sketcher.Constraint("DistanceX", -1, 1, 0, 2, 75.325),
])
revolution2 = doc.addObject("PartDesign::Revolution", "Revolution001")
body.addObject(revolution2)
revolution2.Profile = sketch15
revolution2.ReferenceAxis = (sketch15, ["Axis0"])
revolution2.Angle = 360

# Sketch on XZ plane
sketch16 = doc.addObject("Sketcher::SketchObject", "Sketch015")
body.addObject(sketch16)
sketch16.AttachmentSupport = (doc.XZ_Plane, [""])
sketch16.MapMode = "FlatFace"
sketch16.AttachmentOffset = App.Placement(Vector(0, 0, 15), App.Rotation())
sketch16.addGeometry([
    Part.LineSegment(Vector(60.325, 6.35, 0), Vector(60.325, 2, 0)),
    Part.LineSegment(Vector(60.325, 2, 0), Vector(62.825, 2, 0)),
    Part.LineSegment(Vector(62.825, 2, 0), Vector(62.825, 6.35, 0)),
    Part.LineSegment(Vector(62.825, 6.35, 0), Vector(60.325, 6.35, 0)),
], False)
sketch16.addGeometry(Part.LineSegment(Vector(60.325, 6.35, 0), Vector(60.325, 2, 0)), True)  # axis
sketch16.addConstraint([
    Sketcher.Constraint("Coincident", 0, 2, 1, 1),
    Sketcher.Constraint("Coincident", 1, 2, 2, 1),
    Sketcher.Constraint("Coincident", 2, 2, 3, 1),
    Sketcher.Constraint("Coincident", 3, 2, 0, 1),
    Sketcher.Constraint("Vertical", 0),
    Sketcher.Constraint("Horizontal", 1),
    Sketcher.Constraint("Vertical", 2),
    Sketcher.Constraint("Horizontal", 3),
    Sketcher.Constraint("Vertical", 4),
    Sketcher.Constraint("Coincident", 4, 1, 3, 2),
    Sketcher.Constraint("Horizontal", 1, 2, 4, 2),
    Sketcher.Constraint("DistanceX", 1, 1, 1, 2, 2.5),
    Sketcher.Constraint("DistanceY", -1, 1, 0, 2, 2.0),
    Sketcher.Constraint("DistanceY", 0, 2, 0, 1, 4.35),
    Sketcher.Constraint("DistanceX", -1, 1, 0, 2, 60.325),
])
revolution3 = doc.addObject("PartDesign::Revolution", "Revolution002")
body.addObject(revolution3)
revolution3.Profile = sketch16
revolution3.ReferenceAxis = (sketch16, ["Axis0"])
revolution3.Angle = 360

# Sketch on XZ plane
sketch17 = doc.addObject("Sketcher::SketchObject", "Sketch016")
body.addObject(sketch17)
sketch17.AttachmentSupport = (doc.XZ_Plane, [""])
sketch17.MapMode = "FlatFace"
sketch17.addGeometry([
    Part.LineSegment(Vector(45.325, 5.85, 0), Vector(45.325, 6.35, 0)),
    Part.LineSegment(Vector(45.325, 6.35, 0), Vector(47.825, 6.35, 0)),
    Part.LineSegment(Vector(47.825, 6.35, 0), Vector(47.825, 5.85, 0)),
    Part.LineSegment(Vector(47.825, 5.85, 0), Vector(45.325, 5.85, 0)),
], False)
sketch17.addGeometry(Part.LineSegment(Vector(45.325, 5.85, 0), Vector(45.325, 6.35, 0)), True)  # axis
sketch17.addConstraint([
    Sketcher.Constraint("Coincident", 0, 2, 1, 1),
    Sketcher.Constraint("Coincident", 1, 2, 2, 1),
    Sketcher.Constraint("Coincident", 2, 2, 3, 1),
    Sketcher.Constraint("Coincident", 3, 2, 0, 1),
    Sketcher.Constraint("Vertical", 0),
    Sketcher.Constraint("Horizontal", 1),
    Sketcher.Constraint("Vertical", 2),
    Sketcher.Constraint("Horizontal", 3),
    Sketcher.Constraint("Vertical", 4),
    Sketcher.Constraint("Coincident", 4, 1, 3, 2),
    Sketcher.Constraint("Horizontal", 1, 2, 4, 2),
    Sketcher.Constraint("DistanceX", 1, 1, 1, 2, 2.5),
    Sketcher.Constraint("DistanceY", 0, 1, 0, 2, 0.5),
    Sketcher.Constraint("DistanceY", -1, 1, 0, 2, 6.35),
    Sketcher.Constraint("DistanceX", -1, 1, 0, 2, 45.325),
])
revolution4 = doc.addObject("PartDesign::Revolution", "Revolution003")
body.addObject(revolution4)
revolution4.Profile = sketch17
revolution4.ReferenceAxis = (sketch17, ["Axis0"])
revolution4.Angle = 360

# Sketch on XY plane
sketch18 = doc.addObject("Sketcher::SketchObject", "Sketch017")
body.addObject(sketch18)
sketch18.AttachmentSupport = (doc.XY_Plane, [""])
sketch18.MapMode = "FlatFace"
sketch18.addGeometry([
    Part.Circle(Vector(22.325, -24, 0), Vector(0, 0, 1), 1.25),
    Part.Circle(Vector(22.325, 24, 0), Vector(0, 0, 1), 1.25),
], False)
sketch18.addConstraint([
    Sketcher.Constraint("Equal", 0, 1),
    Sketcher.Constraint("Symmetric", 0, 3, 1, 3, -1),
    Sketcher.Constraint("Diameter", 0, 2.5),
    Sketcher.Constraint("DistanceY", 0, 3, -1, 1, 24.0),
    Sketcher.Constraint("DistanceX", -1, 1, 0, 3, 22.325),
])
doc.recompute()
hole = doc.addObject("PartDesign::Hole", "Hole")
body.addObject(hole)
hole.Profile = sketch18
hole.ThreadType = "None"
hole.Diameter = 2.5
hole.DepthType = "Dimension"
hole.Depth = 6.35
hole.DrillPoint = "Flat"
hole.Reversed = True

# Sketch on XY plane
sketch19 = doc.addObject("Sketcher::SketchObject", "Sketch018")
body.addObject(sketch19)
sketch19.AttachmentSupport = (doc.XY_Plane, [""])
sketch19.MapMode = "FlatFace"
sketch19.AttachmentOffset = App.Placement(Vector(0, 0, 6.35), App.Rotation())
sketch19.addGeometry([
    Part.Circle(Vector(45.325, 0, 0), Vector(0, 0, 1), 1.5),
    Part.Circle(Vector(60.325, 15, 0), Vector(0, 0, 1), 1.5),
    Part.Circle(Vector(75.325, 0, 0), Vector(0, 0, 1), 1.5),
    Part.Circle(Vector(60.325, -15, 0), Vector(0, 0, 1), 1.5),
], False)
sketch19.addConstraint([
    Sketcher.Constraint("Equal", 0, 1),
    Sketcher.Constraint("Equal", 1, 2),
    Sketcher.Constraint("Equal", 2, 3),
    Sketcher.Constraint("Symmetric", 1, 3, 3, 3, -1),
    Sketcher.Constraint("PointOnObject", 0, 3, -1),
    Sketcher.Constraint("PointOnObject", 2, 3, -1),
    Sketcher.Constraint("Diameter", 0, 3.0),
    Sketcher.Constraint("DistanceY", -1, 1, 1, 3, 15.0),
    Sketcher.Constraint("DistanceX", 0, 3, 1, 3, 15.0),
    Sketcher.Constraint("DistanceX", 1, 3, 2, 3, 15.0),
    Sketcher.Constraint("DistanceX", -1, 1, 0, 3, 45.325),
])
doc.recompute()
hole2 = doc.addObject("PartDesign::Hole", "Hole001")
body.addObject(hole2)
hole2.Profile = sketch19
hole2.ThreadType = "None"
hole2.Diameter = 3
hole2.DepthType = "Dimension"
hole2.Depth = 6.35
hole2.DrillPoint = "Flat"

# Sketch on XY plane
sketch20 = doc.addObject("Sketcher::SketchObject", "Sketch019")
body.addObject(sketch20)
sketch20.AttachmentSupport = (doc.XY_Plane, [""])
sketch20.MapMode = "FlatFace"
sketch20.addGeometry([
    Part.Circle(Vector(24.969661, 35.355339, 0), Vector(0, 0, 1), 1.5),
    Part.Circle(Vector(95.680339, 35.355339, 0), Vector(0, 0, 1), 1.5),
    Part.Circle(Vector(95.680339, -35.355339, 0), Vector(0, 0, 1), 1.5),
    Part.Circle(Vector(24.969661, -35.355339, 0), Vector(0, 0, 1), 1.5),
], False)
sketch20.addConstraint([
    Sketcher.Constraint("Equal", 0, 1),
    Sketcher.Constraint("Equal", 1, 2),
    Sketcher.Constraint("Equal", 2, 3),
    Sketcher.Constraint("Symmetric", 1, 3, 2, 3, -1),
    Sketcher.Constraint("Symmetric", 0, 3, 3, 3, -1),
    Sketcher.Constraint("Horizontal", 0, 3, 1, 3),
    Sketcher.Constraint("Diameter", 0, 3.0),
    Sketcher.Constraint("DistanceX", -1, 1, 0, 3, 24.969661),
    Sketcher.Constraint("DistanceY", -1, 1, 0, 3, 35.355339),
    Sketcher.Constraint("DistanceX", -1, 1, 1, 3, 95.680339),
])
doc.recompute()
hole3 = doc.addObject("PartDesign::Hole", "Hole002")
body.addObject(hole3)
hole3.Profile = sketch20
hole3.ThreadType = "None"
hole3.Diameter = 3
hole3.DepthType = "Dimension"
hole3.Depth = 6.35
hole3.DrillPoint = "Flat"
hole3.Reversed = True

# Sketch on XZ plane
sketch21 = doc.addObject("Sketcher::SketchObject", "Sketch020")
body.addObject(sketch21)
sketch21.AttachmentSupport = (doc.XZ_Plane, [""])
sketch21.MapMode = "FlatFace"
sketch21.AttachmentOffset = App.Placement(Vector(0, 0, 40.355339), App.Rotation())
sketch21.addGeometry([
    Part.Circle(Vector(30.325, 3.175, 0), Vector(0, 0, 1), 1.5),
    Part.Circle(Vector(90.325, 3.175, 0), Vector(0, 0, 1), 1.5),
], False)
sketch21.addConstraint([
    Sketcher.Constraint("Equal", 0, 1),
    Sketcher.Constraint("Horizontal", 0, 3, 1, 3),
    Sketcher.Constraint("Diameter", 0, 3.0),
    Sketcher.Constraint("DistanceX", 0, 3, 1, 3, 60.0),
    Sketcher.Constraint("DistanceX", -1, 1, 0, 3, 30.325),
    Sketcher.Constraint("DistanceY", -1, 1, 0, 3, 3.175),
])
doc.recompute()
hole4 = doc.addObject("PartDesign::Hole", "Hole003")
body.addObject(hole4)
hole4.Profile = sketch21
hole4.ThreadType = "None"
hole4.Diameter = 3
hole4.DepthType = "Dimension"
hole4.Depth = 12
hole4.DrillPoint = "Flat"

# Sketch on XZ plane
sketch22 = doc.addObject("Sketcher::SketchObject", "Sketch021")
body.addObject(sketch22)
sketch22.AttachmentSupport = (doc.XZ_Plane, [""])
sketch22.MapMode = "FlatFace"
sketch22.AttachmentOffset = App.Placement(Vector(0, 0, -40.355339), App.Rotation())
sketch22.addGeometry([
    Part.Circle(Vector(90.325, 3.175, 0), Vector(0, 0, 1), 1.5),
    Part.Circle(Vector(30.325, 3.175, 0), Vector(0, 0, 1), 1.5),
], False)
sketch22.addConstraint([
    Sketcher.Constraint("Equal", 0, 1),
    Sketcher.Constraint("Horizontal", 0, 3, 1, 3),
    Sketcher.Constraint("Diameter", 0, 3.0),
    Sketcher.Constraint("DistanceX", 1, 3, 0, 3, 60.0),
    Sketcher.Constraint("DistanceX", -1, 1, 0, 3, 90.325),
    Sketcher.Constraint("DistanceY", -1, 1, 0, 3, 3.175),
])
doc.recompute()
hole5 = doc.addObject("PartDesign::Hole", "Hole004")
body.addObject(hole5)
hole5.Profile = sketch22
hole5.ThreadType = "None"
hole5.Diameter = 3
hole5.DepthType = "Dimension"
hole5.Depth = 12
hole5.DrillPoint = "Flat"
hole5.Reversed = True

# Sketch on YZ plane
sketch23 = doc.addObject("Sketcher::SketchObject", "Sketch022")
body.addObject(sketch23)
sketch23.AttachmentSupport = (doc.YZ_Plane, [""])
sketch23.MapMode = "FlatFace"
sketch23.AttachmentOffset = App.Placement(Vector(0, 0, 100.680339), App.Rotation())
sketch23.addGeometry([
    Part.Circle(Vector(-30, 3.175, 0), Vector(0, 0, 1), 1.5),
    Part.Circle(Vector(30, 3.175, 0), Vector(0, 0, 1), 1.5),
], False)
sketch23.addConstraint([
    Sketcher.Constraint("Equal", 0, 1),
    Sketcher.Constraint("Symmetric", 0, 3, 1, 3, -2),
    Sketcher.Constraint("Diameter", 0, 3.0),
    Sketcher.Constraint("DistanceX", 0, 3, -1, 1, 30.0),
    Sketcher.Constraint("DistanceY", -1, 1, 0, 3, 3.175),
])
doc.recompute()
hole6 = doc.addObject("PartDesign::Hole", "Hole005")
body.addObject(hole6)
hole6.Profile = sketch23
hole6.ThreadType = "None"
hole6.Diameter = 3
hole6.DepthType = "Dimension"
hole6.Depth = 8
hole6.DrillPoint = "Flat"
doc.recompute()

fillet = doc.addObject("PartDesign::Fillet", "Fillet")
body.addObject(fillet)
fillet.Base = (hole6, edges_at(hole6, [
    (82.325, 5.415, 3.925),
    (82.325, -5.415, 3.925),
    (82.325, -28, 3.925),
    (54.325, -28, 3.925),
    (54.325, -21.506, 3.925),
    (54.634, -8.223, 3.925),
    (45.825, 28, 3.925),
    (82.325, 28, 3.925),
]))
fillet.Radius = 3.175
doc.recompute()

fillet2 = doc.addObject("PartDesign::Fillet", "Fillet001")
body.addObject(fillet2)
fillet2.Base = (fillet, edges_at(fillet, [(83.325, 29, 6.1), (83.325, -29, 6.1)]))
fillet2.Radius = 4.175
doc.recompute()

fillet3 = doc.addObject("PartDesign::Fillet", "Fillet002")
body.addObject(fillet3)
fillet3.Base = (fillet2, edges_at(fillet2, [
    (35.97, -40.355, 3.175),
    (84.68, 40.355, 3.175),
    (100.68, 40.355, 3.175),
    (100.68, -24.355, 3.175),
    (15.325, 10, 2.925),
    (15.325, -10, 2.925),
    (100.68, 24.355, 3.175),
    (100.68, -40.355, 3.175),
    (35.97, 40.355, 3.175),
    (84.68, -40.355, 3.175),
    (20.644, 40.355, 3.175),
    (15.325, 31, 3.175),
    (15.325, -31, 3.175),
    (20.644, -40.355, 3.175),
]))
fillet3.Radius = 5
doc.recompute()

fillet4 = doc.addObject("PartDesign::Fillet", "Fillet003")
body.addObject(fillet4)
fillet4.Base = (fillet3, edges_at(fillet3, [
    (75.325, 31, 3.175),
    (45.325, 31, 3.175),
    (85.325, -9, 3.175),
    (85.325, 9, 3.175),
    (45.325, -31, 3.175),
    (75.325, -31, 3.175),
]))
fillet4.Radius = 10

doc.recompute()
